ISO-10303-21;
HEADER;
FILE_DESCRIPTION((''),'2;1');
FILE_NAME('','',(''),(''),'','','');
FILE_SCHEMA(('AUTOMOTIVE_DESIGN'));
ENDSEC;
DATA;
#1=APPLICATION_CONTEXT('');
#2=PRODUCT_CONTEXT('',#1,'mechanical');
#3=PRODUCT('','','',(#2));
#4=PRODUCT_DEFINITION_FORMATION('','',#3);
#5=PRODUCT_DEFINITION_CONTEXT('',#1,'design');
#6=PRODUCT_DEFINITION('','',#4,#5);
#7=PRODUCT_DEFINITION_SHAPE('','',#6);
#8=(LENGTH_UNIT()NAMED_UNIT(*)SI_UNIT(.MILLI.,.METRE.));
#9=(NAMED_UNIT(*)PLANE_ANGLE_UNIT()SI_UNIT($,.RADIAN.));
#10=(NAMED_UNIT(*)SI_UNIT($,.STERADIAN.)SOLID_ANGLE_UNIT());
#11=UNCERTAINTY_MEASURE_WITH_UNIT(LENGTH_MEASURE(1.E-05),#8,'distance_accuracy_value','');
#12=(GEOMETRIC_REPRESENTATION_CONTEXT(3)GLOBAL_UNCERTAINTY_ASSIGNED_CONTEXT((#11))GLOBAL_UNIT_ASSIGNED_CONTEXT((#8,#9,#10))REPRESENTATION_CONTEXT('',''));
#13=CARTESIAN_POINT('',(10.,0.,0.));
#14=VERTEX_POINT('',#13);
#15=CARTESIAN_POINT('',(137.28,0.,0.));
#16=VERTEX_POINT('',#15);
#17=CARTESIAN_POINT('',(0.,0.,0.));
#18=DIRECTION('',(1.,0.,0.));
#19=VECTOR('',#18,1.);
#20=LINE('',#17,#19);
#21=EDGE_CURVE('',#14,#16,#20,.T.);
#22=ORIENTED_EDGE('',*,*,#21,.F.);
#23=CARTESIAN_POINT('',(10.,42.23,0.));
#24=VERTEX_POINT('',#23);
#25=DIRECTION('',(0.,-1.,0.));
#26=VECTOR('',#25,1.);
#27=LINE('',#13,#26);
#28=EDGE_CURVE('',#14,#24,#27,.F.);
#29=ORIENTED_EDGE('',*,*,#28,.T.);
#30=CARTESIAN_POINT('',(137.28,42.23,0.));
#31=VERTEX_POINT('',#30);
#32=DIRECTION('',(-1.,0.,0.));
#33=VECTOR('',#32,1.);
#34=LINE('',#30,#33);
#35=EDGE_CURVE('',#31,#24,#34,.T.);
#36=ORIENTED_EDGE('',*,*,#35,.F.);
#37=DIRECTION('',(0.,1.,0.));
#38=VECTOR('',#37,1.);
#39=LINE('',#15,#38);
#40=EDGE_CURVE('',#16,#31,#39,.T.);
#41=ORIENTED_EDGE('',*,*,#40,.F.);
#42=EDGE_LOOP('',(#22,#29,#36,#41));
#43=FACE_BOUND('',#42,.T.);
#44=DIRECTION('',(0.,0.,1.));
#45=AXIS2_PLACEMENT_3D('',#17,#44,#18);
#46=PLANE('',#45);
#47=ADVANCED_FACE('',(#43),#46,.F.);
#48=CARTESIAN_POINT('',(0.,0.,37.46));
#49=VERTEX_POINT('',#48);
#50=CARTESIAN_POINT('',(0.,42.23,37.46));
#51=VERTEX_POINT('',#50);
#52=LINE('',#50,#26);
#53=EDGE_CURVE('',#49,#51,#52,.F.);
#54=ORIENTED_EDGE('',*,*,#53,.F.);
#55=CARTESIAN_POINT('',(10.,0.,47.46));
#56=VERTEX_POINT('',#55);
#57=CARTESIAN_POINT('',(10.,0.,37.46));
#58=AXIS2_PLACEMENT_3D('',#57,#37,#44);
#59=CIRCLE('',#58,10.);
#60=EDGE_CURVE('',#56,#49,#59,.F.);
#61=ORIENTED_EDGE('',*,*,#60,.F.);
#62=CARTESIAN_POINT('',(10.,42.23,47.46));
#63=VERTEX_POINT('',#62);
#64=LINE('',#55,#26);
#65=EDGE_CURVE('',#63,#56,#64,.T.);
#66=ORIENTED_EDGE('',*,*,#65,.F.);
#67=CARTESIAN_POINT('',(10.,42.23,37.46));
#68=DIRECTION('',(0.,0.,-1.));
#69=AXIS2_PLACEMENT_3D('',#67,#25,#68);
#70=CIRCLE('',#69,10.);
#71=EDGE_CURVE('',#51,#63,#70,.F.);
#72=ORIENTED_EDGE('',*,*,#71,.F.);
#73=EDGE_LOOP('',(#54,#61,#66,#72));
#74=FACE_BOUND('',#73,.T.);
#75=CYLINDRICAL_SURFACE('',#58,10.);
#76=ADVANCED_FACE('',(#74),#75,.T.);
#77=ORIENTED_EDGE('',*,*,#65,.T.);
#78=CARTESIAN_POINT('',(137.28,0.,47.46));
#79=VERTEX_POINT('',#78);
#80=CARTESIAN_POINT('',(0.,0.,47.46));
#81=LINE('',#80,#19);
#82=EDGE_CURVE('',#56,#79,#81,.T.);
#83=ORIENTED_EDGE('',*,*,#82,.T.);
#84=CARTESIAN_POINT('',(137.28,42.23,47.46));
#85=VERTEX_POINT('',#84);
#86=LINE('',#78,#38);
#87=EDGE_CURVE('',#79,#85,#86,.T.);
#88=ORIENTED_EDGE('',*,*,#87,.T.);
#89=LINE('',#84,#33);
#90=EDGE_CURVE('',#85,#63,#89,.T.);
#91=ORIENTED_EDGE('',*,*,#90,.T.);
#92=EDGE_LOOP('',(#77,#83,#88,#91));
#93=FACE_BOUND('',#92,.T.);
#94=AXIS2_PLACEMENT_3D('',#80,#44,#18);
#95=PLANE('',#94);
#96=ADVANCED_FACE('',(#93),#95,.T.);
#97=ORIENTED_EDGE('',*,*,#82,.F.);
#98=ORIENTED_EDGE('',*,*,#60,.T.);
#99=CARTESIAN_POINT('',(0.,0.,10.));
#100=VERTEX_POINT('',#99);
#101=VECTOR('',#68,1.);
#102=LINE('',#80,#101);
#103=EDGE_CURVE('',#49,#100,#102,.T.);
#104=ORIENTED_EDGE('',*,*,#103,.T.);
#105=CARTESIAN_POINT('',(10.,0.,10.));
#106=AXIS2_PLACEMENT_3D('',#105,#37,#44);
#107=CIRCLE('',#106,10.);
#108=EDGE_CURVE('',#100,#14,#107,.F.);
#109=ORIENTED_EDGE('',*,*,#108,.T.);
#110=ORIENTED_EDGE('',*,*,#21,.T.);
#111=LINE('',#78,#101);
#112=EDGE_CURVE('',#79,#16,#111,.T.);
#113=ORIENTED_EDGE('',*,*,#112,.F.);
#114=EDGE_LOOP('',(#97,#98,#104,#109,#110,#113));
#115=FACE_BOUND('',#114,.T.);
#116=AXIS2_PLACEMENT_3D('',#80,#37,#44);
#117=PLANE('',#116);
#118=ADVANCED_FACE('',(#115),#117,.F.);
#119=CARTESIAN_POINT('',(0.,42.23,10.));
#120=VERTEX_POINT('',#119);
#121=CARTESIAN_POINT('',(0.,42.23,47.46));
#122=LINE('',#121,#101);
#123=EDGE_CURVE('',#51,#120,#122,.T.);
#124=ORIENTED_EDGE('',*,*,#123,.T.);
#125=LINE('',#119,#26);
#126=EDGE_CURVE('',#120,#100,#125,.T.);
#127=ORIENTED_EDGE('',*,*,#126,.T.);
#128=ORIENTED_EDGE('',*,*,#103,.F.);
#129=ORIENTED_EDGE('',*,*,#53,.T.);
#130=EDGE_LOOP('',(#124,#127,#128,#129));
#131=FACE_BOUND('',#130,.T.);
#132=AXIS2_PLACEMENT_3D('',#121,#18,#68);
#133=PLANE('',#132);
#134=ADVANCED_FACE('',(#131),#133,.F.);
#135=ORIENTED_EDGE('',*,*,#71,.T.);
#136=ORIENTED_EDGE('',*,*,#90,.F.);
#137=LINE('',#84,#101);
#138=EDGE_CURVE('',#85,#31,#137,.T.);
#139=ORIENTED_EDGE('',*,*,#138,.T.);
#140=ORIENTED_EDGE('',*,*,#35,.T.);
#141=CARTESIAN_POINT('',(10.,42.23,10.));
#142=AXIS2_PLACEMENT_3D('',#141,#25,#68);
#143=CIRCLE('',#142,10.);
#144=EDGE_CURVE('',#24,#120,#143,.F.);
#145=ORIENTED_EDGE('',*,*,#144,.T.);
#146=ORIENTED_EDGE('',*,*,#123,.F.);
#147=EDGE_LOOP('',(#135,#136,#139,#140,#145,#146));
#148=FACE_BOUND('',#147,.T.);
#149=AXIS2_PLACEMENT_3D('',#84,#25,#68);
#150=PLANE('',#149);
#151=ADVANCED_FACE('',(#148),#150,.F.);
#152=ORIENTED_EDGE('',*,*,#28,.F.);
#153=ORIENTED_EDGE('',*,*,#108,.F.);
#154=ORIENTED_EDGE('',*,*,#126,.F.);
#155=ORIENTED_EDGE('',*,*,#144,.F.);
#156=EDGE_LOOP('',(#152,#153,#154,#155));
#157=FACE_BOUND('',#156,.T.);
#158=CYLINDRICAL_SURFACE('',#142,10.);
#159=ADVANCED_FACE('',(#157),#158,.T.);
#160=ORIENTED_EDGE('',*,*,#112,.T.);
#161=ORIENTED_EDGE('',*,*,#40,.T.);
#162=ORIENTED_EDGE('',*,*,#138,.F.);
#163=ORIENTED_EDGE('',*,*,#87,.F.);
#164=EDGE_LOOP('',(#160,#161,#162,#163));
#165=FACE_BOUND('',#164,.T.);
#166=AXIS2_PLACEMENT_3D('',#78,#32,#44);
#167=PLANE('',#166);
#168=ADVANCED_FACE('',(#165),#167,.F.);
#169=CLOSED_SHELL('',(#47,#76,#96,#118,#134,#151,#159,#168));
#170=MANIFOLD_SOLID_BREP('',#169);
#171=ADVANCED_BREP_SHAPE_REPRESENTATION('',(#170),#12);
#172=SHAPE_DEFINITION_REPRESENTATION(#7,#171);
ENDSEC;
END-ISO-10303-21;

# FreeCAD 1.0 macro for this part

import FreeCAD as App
import Part
import Sketcher

V = App.Vector
Q = App.Units.Quantity


def edges_at(feature, points):
    """Names of the edges that pass closest to the given points."""
    edges = feature.Shape.Edges
    near = lambda p: min(range(len(edges)), key=lambda i: edges[i].distToShape(Part.Vertex(*p))[0])
    return sorted({f"Edge{near(p) + 1}" for p in points})


def add_polygon(sketch, points):
    """Adds a closed chain of lines whose ends are joined by coincident constraints."""
    first, n = sketch.GeometryCount, len(points)
    for a, b in zip(points, points[1:] + points[:1]):
        sketch.addGeometry(Part.LineSegment(App.Vector(*a, 0), App.Vector(*b, 0)), False)
    for i in range(n):
        sketch.addConstraint(Sketcher.Constraint("Coincident", first + i, 2, first + (i + 1) % n, 1))

doc = App.newDocument("Part")
params = doc.addObject("Spreadsheet::Sheet", "Params")
for row, (alias, value) in enumerate([
    ("sketch1_width", "137.28 mm"),
    ("sketch1_height", "42.23 mm"),
    ("pad1_length", "47.46 mm"),
    ("fillet_radius", "10 mm"),
], start=1):
    params.set(f"A{row}", alias)
    params.set(f"B{row}", "=" + value)
    params.setAlias(f"B{row}", alias)

body = doc.addObject("PartDesign::Body", "Body")

sketch1 = body.newObject("Sketcher::SketchObject", "Sketch")
sketch1.AttachmentSupport = (doc.getObject("XY_Plane"), [""])
sketch1.MapMode = "FlatFace"
add_polygon(sketch1, [(0, 42), (0, 0), (137, 0), (137, 42)])
sketch1.addConstraint(Sketcher.Constraint("Vertical", 0))
sketch1.addConstraint(Sketcher.Constraint("Horizontal", 1))
sketch1.addConstraint(Sketcher.Constraint("Vertical", 2))
sketch1.addConstraint(Sketcher.Constraint("Horizontal", 3))
sketch1.addConstraint(Sketcher.Constraint("Coincident", 0, 2, -1, 1))
sketch1.addConstraint(Sketcher.Constraint("DistanceX", 1, 1, 1, 2, Q("137.28 mm")))
sketch1.addConstraint(Sketcher.Constraint("DistanceY", 0, 2, 0, 1, Q("42.23 mm")))
sketch1.setExpression("Constraints[9]", "Params.sketch1_width")
sketch1.setExpression("Constraints[10]", "Params.sketch1_height")
pad1 = body.newObject("PartDesign::Pad", "Pad")
pad1.Profile = sketch1
pad1.setExpression("Length", "Params.pad1_length")
doc.recompute()

fillet = body.newObject("PartDesign::Fillet", "Fillet")
fillet.Base = (pad1, edges_at(pad1, [(0, 21.115, 47.46), (0, 21.115, 0)]))
fillet.setExpression("Radius", "Params.fillet_radius")

doc.recompute()
